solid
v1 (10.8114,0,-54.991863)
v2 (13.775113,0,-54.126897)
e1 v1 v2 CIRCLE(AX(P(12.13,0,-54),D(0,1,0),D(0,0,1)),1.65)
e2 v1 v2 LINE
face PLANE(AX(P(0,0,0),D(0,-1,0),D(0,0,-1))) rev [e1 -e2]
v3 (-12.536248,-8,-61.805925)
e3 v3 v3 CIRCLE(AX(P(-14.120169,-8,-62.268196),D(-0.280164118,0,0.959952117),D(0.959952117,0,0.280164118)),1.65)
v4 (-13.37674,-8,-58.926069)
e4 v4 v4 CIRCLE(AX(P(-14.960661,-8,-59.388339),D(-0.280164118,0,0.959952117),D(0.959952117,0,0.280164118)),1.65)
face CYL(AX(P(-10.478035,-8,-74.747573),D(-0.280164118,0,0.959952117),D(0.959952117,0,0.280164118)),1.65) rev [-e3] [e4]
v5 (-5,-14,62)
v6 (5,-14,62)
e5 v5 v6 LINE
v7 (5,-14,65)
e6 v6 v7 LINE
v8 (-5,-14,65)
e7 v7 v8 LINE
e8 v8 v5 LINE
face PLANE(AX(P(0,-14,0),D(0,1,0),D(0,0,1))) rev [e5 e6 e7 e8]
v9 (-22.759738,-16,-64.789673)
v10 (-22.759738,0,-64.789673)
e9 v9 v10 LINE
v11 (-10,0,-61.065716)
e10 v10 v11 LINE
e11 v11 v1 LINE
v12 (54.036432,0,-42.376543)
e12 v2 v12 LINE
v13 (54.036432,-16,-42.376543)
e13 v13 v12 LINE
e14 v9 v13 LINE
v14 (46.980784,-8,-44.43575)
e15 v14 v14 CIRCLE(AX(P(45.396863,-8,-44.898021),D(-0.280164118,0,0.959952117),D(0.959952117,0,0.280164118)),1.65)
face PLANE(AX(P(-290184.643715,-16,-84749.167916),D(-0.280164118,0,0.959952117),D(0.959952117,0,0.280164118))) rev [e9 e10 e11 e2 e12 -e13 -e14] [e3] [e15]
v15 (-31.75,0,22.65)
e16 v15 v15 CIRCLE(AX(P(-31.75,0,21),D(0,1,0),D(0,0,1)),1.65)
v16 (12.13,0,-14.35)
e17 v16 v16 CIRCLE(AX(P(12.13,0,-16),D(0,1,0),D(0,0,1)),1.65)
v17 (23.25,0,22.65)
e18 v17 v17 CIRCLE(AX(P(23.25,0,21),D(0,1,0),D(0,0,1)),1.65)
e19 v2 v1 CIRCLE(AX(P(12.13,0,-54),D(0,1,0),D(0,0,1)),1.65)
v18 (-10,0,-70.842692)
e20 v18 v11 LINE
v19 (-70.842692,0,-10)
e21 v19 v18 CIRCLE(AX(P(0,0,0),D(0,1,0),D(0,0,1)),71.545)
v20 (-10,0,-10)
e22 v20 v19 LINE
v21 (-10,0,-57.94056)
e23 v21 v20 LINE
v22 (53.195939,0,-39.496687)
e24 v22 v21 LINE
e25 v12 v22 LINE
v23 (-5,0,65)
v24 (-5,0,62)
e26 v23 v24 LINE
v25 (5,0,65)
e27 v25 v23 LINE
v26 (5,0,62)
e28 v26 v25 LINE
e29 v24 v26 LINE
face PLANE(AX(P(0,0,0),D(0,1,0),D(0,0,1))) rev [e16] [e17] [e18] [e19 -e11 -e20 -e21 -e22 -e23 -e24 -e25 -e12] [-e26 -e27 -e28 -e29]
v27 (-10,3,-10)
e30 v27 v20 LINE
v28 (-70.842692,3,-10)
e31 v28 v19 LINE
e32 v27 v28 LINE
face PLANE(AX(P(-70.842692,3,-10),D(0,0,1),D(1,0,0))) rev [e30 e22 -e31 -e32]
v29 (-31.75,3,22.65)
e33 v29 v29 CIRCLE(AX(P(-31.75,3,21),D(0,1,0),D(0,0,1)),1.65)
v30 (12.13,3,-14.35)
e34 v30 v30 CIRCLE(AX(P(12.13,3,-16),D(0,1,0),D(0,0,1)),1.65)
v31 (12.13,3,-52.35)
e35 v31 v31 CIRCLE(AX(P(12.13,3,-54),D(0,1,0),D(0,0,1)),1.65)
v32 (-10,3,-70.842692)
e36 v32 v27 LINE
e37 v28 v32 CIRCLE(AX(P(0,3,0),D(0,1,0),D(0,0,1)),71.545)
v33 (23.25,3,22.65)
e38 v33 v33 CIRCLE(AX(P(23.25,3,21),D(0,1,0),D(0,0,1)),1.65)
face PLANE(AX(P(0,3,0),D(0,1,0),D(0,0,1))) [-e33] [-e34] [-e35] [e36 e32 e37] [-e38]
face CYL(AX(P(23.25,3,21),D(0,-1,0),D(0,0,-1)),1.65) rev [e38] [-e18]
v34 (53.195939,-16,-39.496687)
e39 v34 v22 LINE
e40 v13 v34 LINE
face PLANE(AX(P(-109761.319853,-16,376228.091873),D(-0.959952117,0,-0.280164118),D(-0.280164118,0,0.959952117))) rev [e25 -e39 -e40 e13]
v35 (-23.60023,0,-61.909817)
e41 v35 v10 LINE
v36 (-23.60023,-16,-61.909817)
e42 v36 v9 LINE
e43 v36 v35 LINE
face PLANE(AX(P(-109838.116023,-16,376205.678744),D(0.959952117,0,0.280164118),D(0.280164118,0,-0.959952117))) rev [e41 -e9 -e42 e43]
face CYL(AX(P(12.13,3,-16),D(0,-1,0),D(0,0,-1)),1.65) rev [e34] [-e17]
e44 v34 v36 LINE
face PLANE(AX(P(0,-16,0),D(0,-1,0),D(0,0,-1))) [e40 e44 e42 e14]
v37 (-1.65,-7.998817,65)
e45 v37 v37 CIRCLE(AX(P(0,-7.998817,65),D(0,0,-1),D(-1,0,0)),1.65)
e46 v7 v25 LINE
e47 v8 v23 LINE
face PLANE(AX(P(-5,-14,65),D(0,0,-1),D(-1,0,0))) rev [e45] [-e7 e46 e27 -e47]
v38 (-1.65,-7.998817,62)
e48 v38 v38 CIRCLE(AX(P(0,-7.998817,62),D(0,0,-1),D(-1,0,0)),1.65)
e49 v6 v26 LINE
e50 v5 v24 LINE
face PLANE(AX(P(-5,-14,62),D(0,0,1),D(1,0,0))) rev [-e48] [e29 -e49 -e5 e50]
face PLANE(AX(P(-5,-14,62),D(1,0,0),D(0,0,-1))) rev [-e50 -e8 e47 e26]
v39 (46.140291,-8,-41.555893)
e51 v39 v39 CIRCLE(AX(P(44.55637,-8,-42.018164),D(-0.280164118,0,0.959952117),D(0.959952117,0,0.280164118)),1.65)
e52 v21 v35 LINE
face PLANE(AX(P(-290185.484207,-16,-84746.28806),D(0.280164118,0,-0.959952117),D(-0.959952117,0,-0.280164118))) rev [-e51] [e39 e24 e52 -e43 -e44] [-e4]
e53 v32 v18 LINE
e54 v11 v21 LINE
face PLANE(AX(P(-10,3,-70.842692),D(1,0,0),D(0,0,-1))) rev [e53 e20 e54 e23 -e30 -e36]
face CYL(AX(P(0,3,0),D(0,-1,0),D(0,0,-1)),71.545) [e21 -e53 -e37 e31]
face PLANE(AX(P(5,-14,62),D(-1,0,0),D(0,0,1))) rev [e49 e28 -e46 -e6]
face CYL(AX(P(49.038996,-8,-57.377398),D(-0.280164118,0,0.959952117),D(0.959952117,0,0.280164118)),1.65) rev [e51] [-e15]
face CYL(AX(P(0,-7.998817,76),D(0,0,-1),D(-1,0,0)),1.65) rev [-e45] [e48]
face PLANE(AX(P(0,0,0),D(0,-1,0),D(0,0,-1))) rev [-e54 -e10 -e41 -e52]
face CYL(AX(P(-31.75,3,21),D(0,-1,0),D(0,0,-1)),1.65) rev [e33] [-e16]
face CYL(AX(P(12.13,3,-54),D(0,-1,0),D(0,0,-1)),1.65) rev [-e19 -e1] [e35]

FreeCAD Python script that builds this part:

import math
import FreeCAD as App
import Part
import Sketcher

V = App.Vector
Q = App.Units.Quantity


def add_polygon(sketch, points):
    """Adds a closed chain of lines whose ends are joined by coincident constraints."""
    first, n = sketch.GeometryCount, len(points)
    for a, b in zip(points, points[1:] + points[:1]):
        sketch.addGeometry(Part.LineSegment(App.Vector(*a, 0), App.Vector(*b, 0)), False)
    for i in range(n):
        sketch.addConstraint(Sketcher.Constraint("Coincident", first + i, 2, first + (i + 1) % n, 1))

doc = App.newDocument("Part")
body = doc.addObject("PartDesign::Body", "Body")

sketch1 = doc.addObject("Sketcher::SketchObject", "Sketch")
body.addObject(sketch1)
sketch1.AttachmentSupport = (doc.XZ_Plane, [""])
sketch1.MapMode = "FlatFace"
sketch1.addGeometry(Part.LineSegment(V(-10, -70.8, 0), V(-10, -10, 0)), False)
sketch1.addGeometry(Part.LineSegment(V(-10, -10, 0), V(-70.8, -10, 0)), False)
sketch1.addGeometry(Part.ArcOfCircle(Part.Circle(V(0, 0, 0), V(0, 0, 1), 71.5), math.radians(180), math.radians(188.03)), False)
sketch1.addGeometry(Part.ArcOfCircle(Part.Circle(V(0, 0, 0), V(0, 0, 1), 71.5), math.radians(-90), math.radians(180)), False)
sketch1.addGeometry(Part.ArcOfCircle(Part.Circle(V(0, 0, 0), V(0, 0, 1), 71.5), math.radians(-98.03), math.radians(-90)), False)
sketch1.addGeometry(Part.Circle(V(-31.8, 21, 0), V(0, 0, 1), 1.6), False)
sketch1.addGeometry(Part.Circle(V(23.2, 21, 0), V(0, 0, 1), 1.6), False)
sketch1.addGeometry(Part.Circle(V(12.1, -16, 0), V(0, 0, 1), 1.6), False)
sketch1.addGeometry(Part.Circle(V(12.1, -54, 0), V(0, 0, 1), 1.6), False)
sketch1.addConstraint(Sketcher.Constraint("Coincident", 0, 2, 1, 1))
sketch1.addConstraint(Sketcher.Constraint("Coincident", 1, 2, 2, 2))
sketch1.addConstraint(Sketcher.Constraint("Tangent", 2, 1, 3, 2))
sketch1.addConstraint(Sketcher.Constraint("Tangent", 3, 1, 4, 2))
sketch1.addConstraint(Sketcher.Constraint("Coincident", 4, 1, 0, 1))
sketch1.addConstraint(Sketcher.Constraint("Vertical", 0))
sketch1.addConstraint(Sketcher.Constraint("Horizontal", 1))
sketch1.addConstraint(Sketcher.Constraint("Coincident", 2, 3, -1, 1))
sketch1.addConstraint(Sketcher.Constraint("Coincident", 4, 3, -1, 1))
sketch1.addConstraint(Sketcher.Constraint("Equal", 5, 6))
sketch1.addConstraint(Sketcher.Constraint("Equal", 6, 7))
sketch1.addConstraint(Sketcher.Constraint("Equal", 7, 8))
sketch1.addConstraint(Sketcher.Constraint("PointOnObject", 2, 1, -1))
sketch1.addConstraint(Sketcher.Constraint("PointOnObject", 3, 1, -2))
sketch1.addConstraint(Sketcher.Constraint("Horizontal", 5, 3, 6, 3))
sketch1.addConstraint(Sketcher.Constraint("Vertical", 7, 3, 8, 3))
sketch1.addConstraint(Sketcher.Constraint("Equal", 1, 0))
sketch1.addConstraint(Sketcher.Constraint("Diameter", 5, 3.3))
sketch1.addConstraint(Sketcher.Constraint("DistanceY", -1, 1, 5, 3, 21.0))
sketch1.addConstraint(Sketcher.Constraint("DistanceY", 7, 3, -1, 1, 16.0))
sketch1.addConstraint(Sketcher.Constraint("DistanceY", 8, 3, -1, 1, 54.0))
sketch1.addConstraint(Sketcher.Constraint("DistanceX", 0, 2, -1, 1, 10.0))
sketch1.addConstraint(Sketcher.Constraint("Radius", 2, 71.545))
sketch1.addConstraint(Sketcher.Constraint("DistanceX", 5, 3, 6, 3, 55.0))
sketch1.addConstraint(Sketcher.Constraint("DistanceX", 5, 3, -1, 1, 31.75))
sketch1.addConstraint(Sketcher.Constraint("DistanceX", -1, 1, 7, 3, 12.13))
pad1 = doc.addObject("PartDesign::Pad", "Pad")
body.addObject(pad1)
pad1.Profile = sketch1
pad1.Length = 3
pad1.Reversed = True

sketch2 = doc.addObject("Sketcher::SketchObject", "Sketch001")
body.addObject(sketch2)
sketch2.AttachmentSupport = (doc.XZ_Plane, [""])
sketch2.MapMode = "FlatFace"
add_polygon(sketch2, [(53.2, -39.5), (-23.6, -61.9), (-22.8, -64.8), (54, -42.4)])
sketch2.addConstraint(Sketcher.Constraint("Perpendicular", 0, 1))
sketch2.addConstraint(Sketcher.Constraint("Perpendicular", 1, 2))
sketch2.addConstraint(Sketcher.Constraint("Perpendicular", 2, 3))
sketch2.addConstraint(Sketcher.Constraint("Distance", 0, 80.0))
sketch2.addConstraint(Sketcher.Constraint("Distance", 1, 3.0))
sketch2.addConstraint(Sketcher.Constraint("Angle", 0, Q("-163.73 deg")))
sketch2.addConstraint(Sketcher.Constraint("DistanceX", 0, 2, -1, 1, 23.60023))
sketch2.addConstraint(Sketcher.Constraint("DistanceY", 0, 2, -1, 1, 61.909817))
pad2 = doc.addObject("PartDesign::Pad", "Pad001")
body.addObject(pad2)
pad2.Profile = sketch2
pad2.Length = 16

sketch3 = doc.addObject("Sketcher::SketchObject", "Sketch002")
body.addObject(sketch3)
sketch3.Placement = App.Placement(V(14.797855, 0, -50.703252), App.Rotation(V(0.959952117, 0, 0.280164118), V(0, 1, 0), V(-0.280164118, 0, 0.959952117), "ZXY"))
sketch3.addGeometry(Part.Circle(V(-31, -8, 0), V(0, 0, 1), 1.6), False)
sketch3.addGeometry(Part.Circle(V(31, -8, 0), V(0, 0, 1), 1.6), False)
sketch3.addConstraint(Sketcher.Constraint("Equal", 0, 1))
sketch3.addConstraint(Sketcher.Constraint("Symmetric", 0, 3, 1, 3, -2))
sketch3.addConstraint(Sketcher.Constraint("Diameter", 0, 3.3))
sketch3.addConstraint(Sketcher.Constraint("DistanceX", 0, 3, -1, 1, 31.0))
sketch3.addConstraint(Sketcher.Constraint("DistanceY", 0, 3, -1, 1, 8.0))
pocket1 = doc.addObject("PartDesign::Pocket", "Pocket")
body.addObject(pocket1)
pocket1.Profile = sketch3
pocket1.Length = 16

sketch4 = doc.addObject("Sketcher::SketchObject", "Sketch003")
body.addObject(sketch4)
sketch4.AttachmentSupport = (doc.XZ_Plane, [""])
sketch4.MapMode = "FlatFace"
add_polygon(sketch4, [(5, 62), (5, 65), (-5, 65), (-5, 62)])
sketch4.addConstraint(Sketcher.Constraint("Vertical", 0))
sketch4.addConstraint(Sketcher.Constraint("Horizontal", 1))
sketch4.addConstraint(Sketcher.Constraint("Vertical", 2))
sketch4.addConstraint(Sketcher.Constraint("Horizontal", 3))
sketch4.addConstraint(Sketcher.Constraint("DistanceX", 1, 2, 1, 1, 10.0))
sketch4.addConstraint(Sketcher.Constraint("DistanceY", 0, 1, 0, 2, 3.0))
sketch4.addConstraint(Sketcher.Constraint("DistanceX", -1, 1, 0, 2, 5.0))
sketch4.addConstraint(Sketcher.Constraint("DistanceY", -1, 1, 0, 2, 65.0))
pad3 = doc.addObject("PartDesign::Pad", "Pad002")
body.addObject(pad3)
pad3.Profile = sketch4
pad3.Length = 14

sketch5 = doc.addObject("Sketcher::SketchObject", "Sketch004")
body.addObject(sketch5)
sketch5.AttachmentSupport = (doc.XY_Plane, [""])
sketch5.MapMode = "FlatFace"
sketch5.AttachmentOffset = App.Placement(V(0, 0, 62), App.Rotation())
sketch5.addGeometry(Part.Circle(V(0, -8, 0), V(0, 0, 1), 1.6), False)
sketch5.addConstraint(Sketcher.Constraint("PointOnObject", 0, 3, -2))
sketch5.addConstraint(Sketcher.Constraint("Diameter", 0, 3.3))
sketch5.addConstraint(Sketcher.Constraint("DistanceY", 0, 3, -1, 1, 7.998817))
pocket2 = doc.addObject("PartDesign::Pocket", "Pocket001")
body.addObject(pocket2)
pocket2.Profile = sketch5
pocket2.Length = 14
pocket2.Reversed = True

doc.recompute()
